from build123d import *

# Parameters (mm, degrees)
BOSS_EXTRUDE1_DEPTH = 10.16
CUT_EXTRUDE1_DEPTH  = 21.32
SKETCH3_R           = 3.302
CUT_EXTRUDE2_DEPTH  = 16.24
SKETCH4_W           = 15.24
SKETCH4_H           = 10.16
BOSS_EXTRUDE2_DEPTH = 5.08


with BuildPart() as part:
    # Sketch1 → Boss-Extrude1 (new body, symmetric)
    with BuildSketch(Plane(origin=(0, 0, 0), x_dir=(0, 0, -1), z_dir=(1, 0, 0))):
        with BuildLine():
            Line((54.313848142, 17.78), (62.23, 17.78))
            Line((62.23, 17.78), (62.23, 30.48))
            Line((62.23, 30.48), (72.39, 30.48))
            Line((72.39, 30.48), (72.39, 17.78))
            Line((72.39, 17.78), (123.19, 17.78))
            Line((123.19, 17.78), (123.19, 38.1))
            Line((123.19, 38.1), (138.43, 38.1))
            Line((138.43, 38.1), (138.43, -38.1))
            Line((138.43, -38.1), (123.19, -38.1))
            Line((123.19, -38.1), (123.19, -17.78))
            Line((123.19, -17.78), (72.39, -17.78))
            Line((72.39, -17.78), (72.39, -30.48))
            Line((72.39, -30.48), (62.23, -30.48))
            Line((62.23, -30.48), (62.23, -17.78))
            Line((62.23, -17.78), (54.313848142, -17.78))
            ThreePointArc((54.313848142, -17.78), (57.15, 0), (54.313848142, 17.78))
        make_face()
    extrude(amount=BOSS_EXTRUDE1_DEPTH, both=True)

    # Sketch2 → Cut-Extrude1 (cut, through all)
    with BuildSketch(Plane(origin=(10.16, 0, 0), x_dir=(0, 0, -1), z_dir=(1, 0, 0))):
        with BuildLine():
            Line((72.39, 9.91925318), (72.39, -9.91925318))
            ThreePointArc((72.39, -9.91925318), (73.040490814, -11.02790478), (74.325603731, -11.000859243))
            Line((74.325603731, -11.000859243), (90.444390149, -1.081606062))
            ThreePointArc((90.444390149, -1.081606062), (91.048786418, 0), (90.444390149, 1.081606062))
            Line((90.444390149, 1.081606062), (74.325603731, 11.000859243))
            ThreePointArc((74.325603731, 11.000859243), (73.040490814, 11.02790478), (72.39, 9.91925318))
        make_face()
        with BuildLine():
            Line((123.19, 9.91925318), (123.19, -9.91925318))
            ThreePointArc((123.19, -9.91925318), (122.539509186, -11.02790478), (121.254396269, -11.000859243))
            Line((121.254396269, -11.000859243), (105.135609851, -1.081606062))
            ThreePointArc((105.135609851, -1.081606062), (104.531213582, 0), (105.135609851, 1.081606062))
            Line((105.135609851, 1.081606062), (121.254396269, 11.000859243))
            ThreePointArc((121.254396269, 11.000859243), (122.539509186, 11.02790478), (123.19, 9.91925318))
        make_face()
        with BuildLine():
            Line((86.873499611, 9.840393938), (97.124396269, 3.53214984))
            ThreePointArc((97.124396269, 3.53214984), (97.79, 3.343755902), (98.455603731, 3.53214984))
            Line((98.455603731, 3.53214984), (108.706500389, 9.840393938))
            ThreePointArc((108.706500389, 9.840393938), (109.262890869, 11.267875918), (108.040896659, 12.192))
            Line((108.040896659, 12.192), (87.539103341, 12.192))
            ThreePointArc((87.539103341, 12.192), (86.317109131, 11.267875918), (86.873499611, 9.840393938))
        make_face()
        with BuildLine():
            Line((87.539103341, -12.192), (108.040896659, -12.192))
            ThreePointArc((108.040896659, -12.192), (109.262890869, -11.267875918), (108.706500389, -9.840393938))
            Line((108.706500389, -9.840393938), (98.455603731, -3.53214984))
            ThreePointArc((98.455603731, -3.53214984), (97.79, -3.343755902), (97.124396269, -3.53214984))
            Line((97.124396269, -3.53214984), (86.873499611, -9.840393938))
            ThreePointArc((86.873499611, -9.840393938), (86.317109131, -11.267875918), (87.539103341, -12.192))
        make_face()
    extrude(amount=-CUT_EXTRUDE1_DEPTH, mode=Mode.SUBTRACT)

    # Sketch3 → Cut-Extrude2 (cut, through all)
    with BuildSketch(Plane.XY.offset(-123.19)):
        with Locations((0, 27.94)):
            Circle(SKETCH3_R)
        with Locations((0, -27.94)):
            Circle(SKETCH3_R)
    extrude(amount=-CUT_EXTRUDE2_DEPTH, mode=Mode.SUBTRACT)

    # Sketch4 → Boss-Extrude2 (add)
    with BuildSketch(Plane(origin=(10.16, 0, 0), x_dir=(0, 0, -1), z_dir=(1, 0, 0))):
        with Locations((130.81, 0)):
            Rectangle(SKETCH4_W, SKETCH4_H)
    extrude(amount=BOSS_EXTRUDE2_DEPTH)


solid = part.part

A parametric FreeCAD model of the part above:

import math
import FreeCAD as App
import Part
import Sketcher
Q = App.Units.Quantity


def add_polygon(sketch, points):
    """Adds a closed chain of lines whose ends are joined by coincident constraints."""
    first, n = sketch.GeometryCount, len(points)
    for a, b in zip(points, points[1:] + points[:1]):
        sketch.addGeometry(Part.LineSegment(App.Vector(*a, 0), App.Vector(*b, 0)), False)
    for i in range(n):
        sketch.addConstraint(Sketcher.Constraint("Coincident", first + i, 2, first + (i + 1) % n, 1))

doc = App.newDocument("Part")
body = doc.addObject("PartDesign::Body", "Body")

# Sketch on YZ plane
sketch1 = body.newObject("Sketcher::SketchObject", "Sketch")
sketch1.AttachmentSupport = (doc.getObject("YZ_Plane"), [""])
sketch1.MapMode = "FlatFace"
sketch1.addGeometry(Part.LineSegment(App.Vector(17.78, -62.23, 0), App.Vector(17.78, -54.313848, 0)), False)
sketch1.addGeometry(Part.ArcOfCircle(Part.Circle(App.Vector(0, 0, 0), App.Vector(0, 0, 1), 57.15), math.radians(-108.126204), math.radians(-71.873796)), False)
sketch1.addGeometry(Part.LineSegment(App.Vector(-17.78, -54.313848, 0), App.Vector(-17.78, -62.23, 0)), False)
sketch1.addGeometry(Part.LineSegment(App.Vector(-17.78, -62.23, 0), App.Vector(-30.48, -62.23, 0)), False)
sketch1.addGeometry(Part.LineSegment(App.Vector(-30.48, -62.23, 0), App.Vector(-30.48, -72.39, 0)), False)
sketch1.addGeometry(Part.LineSegment(App.Vector(-30.48, -72.39, 0), App.Vector(-17.78, -72.39, 0)), False)
sketch1.addGeometry(Part.LineSegment(App.Vector(-17.78, -72.39, 0), App.Vector(-17.78, -123.19, 0)), False)
sketch1.addGeometry(Part.LineSegment(App.Vector(-17.78, -123.19, 0), App.Vector(-38.1, -123.19, 0)), False)
sketch1.addGeometry(Part.LineSegment(App.Vector(-38.1, -123.19, 0), App.Vector(-38.1, -138.43, 0)), False)
sketch1.addGeometry(Part.LineSegment(App.Vector(-38.1, -138.43, 0), App.Vector(38.1, -138.43, 0)), False)
sketch1.addGeometry(Part.LineSegment(App.Vector(38.1, -138.43, 0), App.Vector(38.1, -123.19, 0)), False)
sketch1.addGeometry(Part.LineSegment(App.Vector(38.1, -123.19, 0), App.Vector(17.78, -123.19, 0)), False)
sketch1.addGeometry(Part.LineSegment(App.Vector(17.78, -123.19, 0), App.Vector(17.78, -72.39, 0)), False)
sketch1.addGeometry(Part.LineSegment(App.Vector(17.78, -72.39, 0), App.Vector(30.48, -72.39, 0)), False)
sketch1.addGeometry(Part.LineSegment(App.Vector(30.48, -72.39, 0), App.Vector(30.48, -62.23, 0)), False)
sketch1.addGeometry(Part.LineSegment(App.Vector(30.48, -62.23, 0), App.Vector(17.78, -62.23, 0)), False)
sketch1.addConstraint(Sketcher.Constraint("Coincident", 0, 2, 1, 2))
sketch1.addConstraint(Sketcher.Constraint("Coincident", 1, 1, 2, 1))
sketch1.addConstraint(Sketcher.Constraint("Coincident", 2, 2, 3, 1))
sketch1.addConstraint(Sketcher.Constraint("Coincident", 3, 2, 4, 1))
sketch1.addConstraint(Sketcher.Constraint("Coincident", 4, 2, 5, 1))
sketch1.addConstraint(Sketcher.Constraint("Coincident", 5, 2, 6, 1))
sketch1.addConstraint(Sketcher.Constraint("Coincident", 6, 2, 7, 1))
sketch1.addConstraint(Sketcher.Constraint("Coincident", 7, 2, 8, 1))
sketch1.addConstraint(Sketcher.Constraint("Coincident", 8, 2, 9, 1))
sketch1.addConstraint(Sketcher.Constraint("Coincident", 9, 2, 10, 1))
sketch1.addConstraint(Sketcher.Constraint("Coincident", 10, 2, 11, 1))
sketch1.addConstraint(Sketcher.Constraint("Coincident", 11, 2, 12, 1))
sketch1.addConstraint(Sketcher.Constraint("Coincident", 12, 2, 13, 1))
sketch1.addConstraint(Sketcher.Constraint("Coincident", 13, 2, 14, 1))
sketch1.addConstraint(Sketcher.Constraint("Coincident", 14, 2, 15, 1))
sketch1.addConstraint(Sketcher.Constraint("Coincident", 15, 2, 0, 1))
sketch1.addConstraint(Sketcher.Constraint("Vertical", 0))
sketch1.addConstraint(Sketcher.Constraint("Vertical", 2))
sketch1.addConstraint(Sketcher.Constraint("Horizontal", 3))
sketch1.addConstraint(Sketcher.Constraint("Vertical", 4))
sketch1.addConstraint(Sketcher.Constraint("Horizontal", 5))
sketch1.addConstraint(Sketcher.Constraint("Vertical", 6))
sketch1.addConstraint(Sketcher.Constraint("Horizontal", 7))
sketch1.addConstraint(Sketcher.Constraint("Vertical", 8))
sketch1.addConstraint(Sketcher.Constraint("Horizontal", 9))
sketch1.addConstraint(Sketcher.Constraint("Vertical", 10))
sketch1.addConstraint(Sketcher.Constraint("Horizontal", 11))
sketch1.addConstraint(Sketcher.Constraint("Vertical", 12))
sketch1.addConstraint(Sketcher.Constraint("Horizontal", 13))
sketch1.addConstraint(Sketcher.Constraint("Vertical", 14))
sketch1.addConstraint(Sketcher.Constraint("Horizontal", 15))
sketch1.addConstraint(Sketcher.Constraint("Coincident", 1, 3, -1, 1))
sketch1.addConstraint(Sketcher.Constraint("Symmetric", 7, 2, 10, 2, -2))
sketch1.addConstraint(Sketcher.Constraint("Symmetric", 5, 2, 12, 2, -2))
sketch1.addConstraint(Sketcher.Constraint("Symmetric", 3, 2, 14, 2, -2))
sketch1.addConstraint(Sketcher.Constraint("Horizontal", 0, 2, 1, 1))
sketch1.addConstraint(Sketcher.Constraint("Vertical", 2, 2, 5, 2))
sketch1.addConstraint(Sketcher.Constraint("DistanceX", 9, 1, 9, 2, Q("3 in")))
sketch1.addConstraint(Sketcher.Constraint("DistanceY", 6, 2, 6, 1, Q("2 in")))
sketch1.addConstraint(Sketcher.Constraint("Radius", 1, Q("2.25 in")))
sketch1.addConstraint(Sketcher.Constraint("DistanceX", 3, 2, 3, 1, Q("0.5 in")))
sketch1.addConstraint(Sketcher.Constraint("DistanceX", 7, 2, 7, 1, Q("0.8 in")))
sketch1.addConstraint(Sketcher.Constraint("DistanceY", 4, 2, 4, 1, Q("0.4 in")))
sketch1.addConstraint(Sketcher.Constraint("DistanceY", 8, 2, 8, 1, Q("0.6 in")))
sketch1.addConstraint(Sketcher.Constraint("DistanceY", 2, 2, -1, 1, Q("2.45 in")))
pad1 = body.newObject("PartDesign::Pad", "Pad")
pad1.Profile = sketch1
pad1.Length = Q("0.8 in")
pad1.Midplane = True

# Sketch on YZ plane
sketch2 = body.newObject("Sketcher::SketchObject", "Sketch001")
sketch2.AttachmentSupport = (doc.getObject("YZ_Plane"), [""])
sketch2.MapMode = "FlatFace"
sketch2.AttachmentOffset = App.Placement(App.Vector(0, 0, 0.4 * 25.4), App.Rotation())
sketch2.addGeometry(Part.LineSegment(App.Vector(9.919253, -72.39, 0), App.Vector(-9.919253, -72.39, 0)), False)
sketch2.addGeometry(Part.ArcOfCircle(Part.Circle(App.Vector(-9.919253, -73.66, 0), App.Vector(0, 0, 1), 1.27), math.radians(90), math.radians(211.607502)), False)
sketch2.addGeometry(Part.LineSegment(App.Vector(-11.000859, -74.325604, 0), App.Vector(-1.081606, -90.44439, 0)), False)
sketch2.addGeometry(Part.ArcOfCircle(Part.Circle(App.Vector(0, -89.778786, 0), App.Vector(0, 0, 1), 1.27), math.radians(-148.392498), math.radians(-31.607502)), False)
sketch2.addGeometry(Part.LineSegment(App.Vector(1.081606, -90.44439, 0), App.Vector(11.000859, -74.325604, 0)), False)
sketch2.addGeometry(Part.ArcOfCircle(Part.Circle(App.Vector(9.919253, -73.66, 0), App.Vector(0, 0, 1), 1.27), math.radians(-31.607502), math.radians(90)), False)
sketch2.addGeometry(Part.LineSegment(App.Vector(-9.919253, -123.19, 0), App.Vector(9.919253, -123.19, 0)), False)
sketch2.addGeometry(Part.ArcOfCircle(Part.Circle(App.Vector(9.919253, -121.92, 0), App.Vector(0, 0, 1), 1.27), math.radians(-90), math.radians(31.607502)), False)
sketch2.addGeometry(Part.LineSegment(App.Vector(11.000859, -121.254396, 0), App.Vector(1.081606, -105.13561, 0)), False)
sketch2.addGeometry(Part.ArcOfCircle(Part.Circle(App.Vector(0, -105.801214, 0), App.Vector(0, 0, 1), 1.27), math.radians(31.607502), math.radians(148.392498)), False)
sketch2.addGeometry(Part.LineSegment(App.Vector(-1.081606, -105.13561, 0), App.Vector(-11.000859, -121.254396, 0)), False)
sketch2.addGeometry(Part.ArcOfCircle(Part.Circle(App.Vector(-9.919253, -121.92, 0), App.Vector(0, 0, 1), 1.27), math.radians(148.392498), math.radians(270)), False)
sketch2.addGeometry(Part.LineSegment(App.Vector(9.840394, -86.8735, 0), App.Vector(3.53215, -97.124396, 0)), False)
sketch2.addGeometry(Part.ArcOfCircle(Part.Circle(App.Vector(4.613756, -97.79, 0), App.Vector(0, 0, 1), 1.27), math.radians(148.392498), math.radians(211.607502)), False)
sketch2.addGeometry(Part.LineSegment(App.Vector(3.53215, -98.455604, 0), App.Vector(9.840394, -108.7065, 0)), False)
sketch2.addGeometry(Part.ArcOfCircle(Part.Circle(App.Vector(10.922, -108.040897, 0), App.Vector(0, 0, 1), 1.27), math.radians(-148.392498), math.radians(0)), False)
sketch2.addGeometry(Part.LineSegment(App.Vector(12.192, -108.040897, 0), App.Vector(12.192, -87.539103, 0)), False)
sketch2.addGeometry(Part.ArcOfCircle(Part.Circle(App.Vector(10.922, -87.539103, 0), App.Vector(0, 0, 1), 1.27), math.radians(0), math.radians(148.392498)), False)
sketch2.addGeometry(Part.LineSegment(App.Vector(-12.192, -87.539103, 0), App.Vector(-12.192, -108.040897, 0)), False)
sketch2.addGeometry(Part.ArcOfCircle(Part.Circle(App.Vector(-10.922, -108.040897, 0), App.Vector(0, 0, 1), 1.27), math.radians(180), math.radians(328.392498)), False)
sketch2.addGeometry(Part.LineSegment(App.Vector(-9.840394, -108.7065, 0), App.Vector(-3.53215, -98.455604, 0)), False)
sketch2.addGeometry(Part.ArcOfCircle(Part.Circle(App.Vector(-4.613756, -97.79, 0), App.Vector(0, 0, 1), 1.27), math.radians(-31.607502), math.radians(31.607502)), False)
sketch2.addGeometry(Part.LineSegment(App.Vector(-3.53215, -97.124396, 0), App.Vector(-9.840394, -86.8735, 0)), False)
sketch2.addGeometry(Part.ArcOfCircle(Part.Circle(App.Vector(-10.922, -87.539103, 0), App.Vector(0, 0, 1), 1.27), math.radians(31.607502), math.radians(180)), False)
sketch2.addConstraint(Sketcher.Constraint("Tangent", 0, 2, 1, 1))
sketch2.addConstraint(Sketcher.Constraint("Tangent", 1, 2, 2, 1))
sketch2.addConstraint(Sketcher.Constraint("Tangent", 2, 2, 3, 1))
sketch2.addConstraint(Sketcher.Constraint("Tangent", 3, 2, 4, 1))
sketch2.addConstraint(Sketcher.Constraint("Tangent", 4, 2, 5, 1))
sketch2.addConstraint(Sketcher.Constraint("Tangent", 5, 2, 0, 1))
sketch2.addConstraint(Sketcher.Constraint("Tangent", 6, 2, 7, 1))
sketch2.addConstraint(Sketcher.Constraint("Tangent", 7, 2, 8, 1))
sketch2.addConstraint(Sketcher.Constraint("Tangent", 8, 2, 9, 1))
sketch2.addConstraint(Sketcher.Constraint("Tangent", 9, 2, 10, 1))
sketch2.addConstraint(Sketcher.Constraint("Tangent", 10, 2, 11, 1))
sketch2.addConstraint(Sketcher.Constraint("Tangent", 11, 2, 6, 1))
sketch2.addConstraint(Sketcher.Constraint("Tangent", 12, 2, 13, 1))
sketch2.addConstraint(Sketcher.Constraint("Tangent", 13, 2, 14, 1))
sketch2.addConstraint(Sketcher.Constraint("Tangent", 14, 2, 15, 1))
sketch2.addConstraint(Sketcher.Constraint("Tangent", 15, 2, 16, 1))
sketch2.addConstraint(Sketcher.Constraint("Tangent", 16, 2, 17, 1))
sketch2.addConstraint(Sketcher.Constraint("Tangent", 17, 2, 12, 1))
sketch2.addConstraint(Sketcher.Constraint("Tangent", 18, 2, 19, 1))
sketch2.addConstraint(Sketcher.Constraint("Tangent", 19, 2, 20, 1))
sketch2.addConstraint(Sketcher.Constraint("Tangent", 20, 2, 21, 1))
sketch2.addConstraint(Sketcher.Constraint("Tangent", 21, 2, 22, 1))
sketch2.addConstraint(Sketcher.Constraint("Tangent", 22, 2, 23, 1))
sketch2.addConstraint(Sketcher.Constraint("Tangent", 23, 2, 18, 1))
sketch2.addConstraint(Sketcher.Constraint("Horizontal", 0))
sketch2.addConstraint(Sketcher.Constraint("Horizontal", 6))
sketch2.addConstraint(Sketcher.Constraint("Vertical", 16))
sketch2.addConstraint(Sketcher.Constraint("Vertical", 18))
sketch2.addConstraint(Sketcher.Constraint("Equal", 1, 3))
sketch2.addConstraint(Sketcher.Constraint("Equal", 3, 5))
sketch2.addConstraint(Sketcher.Constraint("Equal", 5, 7))
sketch2.addConstraint(Sketcher.Constraint("Equal", 7, 9))
sketch2.addConstraint(Sketcher.Constraint("Equal", 9, 11))
sketch2.addConstraint(Sketcher.Constraint("Equal", 11, 13))
sketch2.addConstraint(Sketcher.Constraint("Equal", 13, 15))
sketch2.addConstraint(Sketcher.Constraint("Equal", 15, 17))
sketch2.addConstraint(Sketcher.Constraint("Equal", 17, 19))
sketch2.addConstraint(Sketcher.Constraint("Equal", 19, 21))
sketch2.addConstraint(Sketcher.Constraint("Equal", 21, 23))
sketch2.addConstraint(Sketcher.Constraint("Symmetric", 15, 3, 19, 3, -2))
sketch2.addConstraint(Sketcher.Constraint("Symmetric", 13, 3, 21, 3, -2))
sketch2.addConstraint(Sketcher.Constraint("Symmetric", 2, 2, 3, 2, -2))
sketch2.addConstraint(Sketcher.Constraint("Symmetric", 8, 2, 9, 2, -2))
sketch2.addConstraint(Sketcher.Constraint("Parallel", 2, 8))
sketch2.addConstraint(Sketcher.Constraint("Parallel", 10, 12))
sketch2.addConstraint(Sketcher.Constraint("Parallel", 8, 14))
sketch2.addConstraint(Sketcher.Constraint("Parallel", 14, 22))
sketch2.addConstraint(Sketcher.Constraint("Vertical", 5, 3, 7, 3))
sketch2.addConstraint(Sketcher.Constraint("Radius", 1, Q("0.05 in")))
sketch2.addConstraint(Sketcher.Constraint("DistanceY", 1, 3, -1, 1, Q("2.9 in")))
sketch2.addConstraint(Sketcher.Constraint("DistanceY", 7, 3, -1, 1, Q("4.8 in")))
sketch2.addConstraint(Sketcher.Constraint("DistanceY", 13, 3, -1, 1, Q("3.85 in")))
sketch2.addConstraint(Sketcher.Constraint("DistanceX", -1, 1, 15, 3, Q("0.43 in")))
sketch2.addConstraint(Sketcher.Constraint("DistanceY", 14, 2, -1, 1, 108.7065))
sketch2.addConstraint(Sketcher.Constraint("DistanceX", 20, 2, 13, 2, 7.0643))
sketch2.addConstraint(Sketcher.Constraint("DistanceX", 0, 2, 0, 1, 19.838506))
pocket1 = body.newObject("PartDesign::Pocket", "Pocket")
pocket1.Profile = sketch2
pocket1.Type = "ThroughAll"

# Sketch on XY plane
sketch3 = body.newObject("Sketcher::SketchObject", "Sketch002")
sketch3.AttachmentSupport = (doc.getObject("XY_Plane"), [""])
sketch3.MapMode = "FlatFace"
sketch3.AttachmentOffset = App.Placement(App.Vector(0, 0, -4.85 * 25.4), App.Rotation())
sketch3.addGeometry(Part.Circle(App.Vector(0, 27.94, 0), App.Vector(0, 0, 1), 3.302), False)
sketch3.addGeometry(Part.Circle(App.Vector(0, -27.94, 0), App.Vector(0, 0, 1), 3.302), False)
sketch3.addConstraint(Sketcher.Constraint("Equal", 0, 1))
sketch3.addConstraint(Sketcher.Constraint("Symmetric", 0, 3, 1, 3, -1, 1))
sketch3.addConstraint(Sketcher.Constraint("PointOnObject", 0, 3, -2))
sketch3.addConstraint(Sketcher.Constraint("Diameter", 0, Q("0.26 in")))
sketch3.addConstraint(Sketcher.Constraint("DistanceY", -1, 1, 0, 3, Q("1.1 in")))
pocket2 = body.newObject("PartDesign::Pocket", "Pocket001")
pocket2.Profile = sketch3
pocket2.Type = "ThroughAll"

# Sketch on YZ plane
sketch4 = body.newObject("Sketcher::SketchObject", "Sketch003")
sketch4.AttachmentSupport = (doc.getObject("YZ_Plane"), [""])
sketch4.MapMode = "FlatFace"
sketch4.AttachmentOffset = App.Placement(App.Vector(0, 0, 0.4 * 25.4), App.Rotation())
add_polygon(sketch4, [(5.08, -123.19), (-5.08, -123.19), (-5.08, -138.43), (5.08, -138.43)])  # lines 0-3
sketch4.addConstraint(Sketcher.Constraint("Horizontal", 0))
sketch4.addConstraint(Sketcher.Constraint("Vertical", 1))
sketch4.addConstraint(Sketcher.Constraint("Horizontal", 2))
sketch4.addConstraint(Sketcher.Constraint("Vertical", 3))
sketch4.addConstraint(Sketcher.Constraint("DistanceX", 0, 2, 0, 1, Q("0.4 in")))
sketch4.addConstraint(Sketcher.Constraint("DistanceY", 1, 2, 1, 1, Q("0.6 in")))
sketch4.addConstraint(Sketcher.Constraint("DistanceX", 0, 2, -1, 1, Q("0.2 in")))
sketch4.addConstraint(Sketcher.Constraint("DistanceY", 0, 2, -1, 1, Q("4.85 in")))
pad2 = body.newObject("PartDesign::Pad", "Pad001")
pad2.Profile = sketch4
pad2.Length = Q("0.2 in")

doc.recompute()
